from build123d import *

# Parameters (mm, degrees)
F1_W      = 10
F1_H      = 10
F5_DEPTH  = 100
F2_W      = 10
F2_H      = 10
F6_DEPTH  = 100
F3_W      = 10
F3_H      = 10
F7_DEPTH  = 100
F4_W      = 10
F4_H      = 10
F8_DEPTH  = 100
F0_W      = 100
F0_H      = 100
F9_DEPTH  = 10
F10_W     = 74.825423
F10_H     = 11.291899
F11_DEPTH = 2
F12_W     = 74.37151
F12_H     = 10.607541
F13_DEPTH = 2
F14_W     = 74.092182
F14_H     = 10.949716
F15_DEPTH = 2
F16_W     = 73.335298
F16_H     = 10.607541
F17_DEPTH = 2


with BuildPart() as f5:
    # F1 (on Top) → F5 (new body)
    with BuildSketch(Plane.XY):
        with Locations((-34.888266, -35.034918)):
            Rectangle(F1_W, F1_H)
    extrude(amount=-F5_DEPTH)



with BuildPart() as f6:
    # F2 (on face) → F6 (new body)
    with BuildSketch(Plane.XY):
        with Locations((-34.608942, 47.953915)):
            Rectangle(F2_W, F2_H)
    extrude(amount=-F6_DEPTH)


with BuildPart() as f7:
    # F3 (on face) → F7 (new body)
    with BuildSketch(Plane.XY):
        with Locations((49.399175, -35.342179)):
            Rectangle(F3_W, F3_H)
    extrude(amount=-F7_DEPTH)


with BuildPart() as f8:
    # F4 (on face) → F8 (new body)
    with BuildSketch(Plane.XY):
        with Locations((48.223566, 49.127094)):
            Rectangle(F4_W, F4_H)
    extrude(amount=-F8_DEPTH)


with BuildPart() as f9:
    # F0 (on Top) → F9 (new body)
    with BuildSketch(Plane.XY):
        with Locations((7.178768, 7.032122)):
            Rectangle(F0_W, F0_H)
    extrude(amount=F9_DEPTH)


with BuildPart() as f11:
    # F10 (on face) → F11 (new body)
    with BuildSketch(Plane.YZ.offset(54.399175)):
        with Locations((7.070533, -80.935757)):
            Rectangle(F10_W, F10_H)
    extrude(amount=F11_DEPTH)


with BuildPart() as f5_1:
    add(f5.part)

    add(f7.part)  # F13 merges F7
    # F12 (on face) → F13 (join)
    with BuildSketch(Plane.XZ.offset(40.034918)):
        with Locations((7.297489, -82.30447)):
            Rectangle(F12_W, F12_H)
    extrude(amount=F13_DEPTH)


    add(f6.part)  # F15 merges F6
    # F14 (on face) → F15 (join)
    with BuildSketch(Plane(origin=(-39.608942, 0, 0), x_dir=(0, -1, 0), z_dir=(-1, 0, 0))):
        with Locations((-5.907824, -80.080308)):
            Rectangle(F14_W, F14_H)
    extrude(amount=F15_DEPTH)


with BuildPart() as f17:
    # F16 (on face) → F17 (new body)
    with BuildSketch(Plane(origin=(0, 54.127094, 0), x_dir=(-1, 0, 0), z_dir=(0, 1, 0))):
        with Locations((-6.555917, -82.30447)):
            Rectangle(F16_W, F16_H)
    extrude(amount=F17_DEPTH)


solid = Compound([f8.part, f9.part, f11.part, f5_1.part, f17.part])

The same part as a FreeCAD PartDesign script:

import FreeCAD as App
import Part
import Sketcher

V = App.Vector
Q = App.Units.Quantity

doc = App.newDocument("Part")
body = doc.addObject("PartDesign::Body", "Body")

# Sketch on XY plane
sketch1 = body.newObject("Sketcher::SketchObject", "Sketch")
sketch1.AttachmentSupport = (doc.getObject("XY_Plane"), [""])
sketch1.MapMode = "FlatFace"
sketch1.addGeometry(Part.LineSegment(V(-40, -30, 0), V(-40, -40, 0)), False)
sketch1.addGeometry(Part.LineSegment(V(-40, -40, 0), V(-30, -40, 0)), False)
sketch1.addGeometry(Part.LineSegment(V(-30, -40, 0), V(-30, -30, 0)), False)
sketch1.addGeometry(Part.LineSegment(V(-30, -30, 0), V(-40, -30, 0)), False)
sketch1.addConstraint(Sketcher.Constraint("Coincident", 0, 2, 1, 1))
sketch1.addConstraint(Sketcher.Constraint("Coincident", 1, 2, 2, 1))
sketch1.addConstraint(Sketcher.Constraint("Coincident", 2, 2, 3, 1))
sketch1.addConstraint(Sketcher.Constraint("Coincident", 3, 2, 0, 1))
sketch1.addConstraint(Sketcher.Constraint("Vertical", 0))
sketch1.addConstraint(Sketcher.Constraint("Horizontal", 1))
sketch1.addConstraint(Sketcher.Constraint("Vertical", 2))
sketch1.addConstraint(Sketcher.Constraint("Horizontal", 3))
sketch1.addConstraint(Sketcher.Constraint("Equal", 3, 0))
sketch1.addConstraint(Sketcher.Constraint("DistanceX", 1, 1, 1, 2, Q("10 mm")))
sketch1.addConstraint(Sketcher.Constraint("DistanceY", 2, 2, -1, 1, Q("30.034918 mm")))
sketch1.addConstraint(Sketcher.Constraint("DistanceX", 0, 2, -1, 1, Q("39.888266 mm")))
pad1 = body.newObject("PartDesign::Pad", "Pad")
pad1.Profile = sketch1
pad1.Length = 100
pad1.Reversed = True
body2 = doc.addObject("PartDesign::Body", "Body001")

# Sketch on XY plane
sketch2 = body2.newObject("Sketcher::SketchObject", "Sketch001")
sketch2.AttachmentSupport = (doc.getObject("XY_Plane001"), [""])
sketch2.MapMode = "FlatFace"
sketch2.addGeometry(Part.LineSegment(V(-40, 53, 0), V(-40, 43, 0)), False)
sketch2.addGeometry(Part.LineSegment(V(-40, 43, 0), V(-30, 43, 0)), False)
sketch2.addGeometry(Part.LineSegment(V(-30, 43, 0), V(-30, 53, 0)), False)
sketch2.addGeometry(Part.LineSegment(V(-30, 53, 0), V(-40, 53, 0)), False)
sketch2.addConstraint(Sketcher.Constraint("Coincident", 0, 2, 1, 1))
sketch2.addConstraint(Sketcher.Constraint("Coincident", 1, 2, 2, 1))
sketch2.addConstraint(Sketcher.Constraint("Coincident", 2, 2, 3, 1))
sketch2.addConstraint(Sketcher.Constraint("Coincident", 3, 2, 0, 1))
sketch2.addConstraint(Sketcher.Constraint("Vertical", 0))
sketch2.addConstraint(Sketcher.Constraint("Horizontal", 1))
sketch2.addConstraint(Sketcher.Constraint("Vertical", 2))
sketch2.addConstraint(Sketcher.Constraint("Horizontal", 3))
sketch2.addConstraint(Sketcher.Constraint("Equal", 3, 0))
sketch2.addConstraint(Sketcher.Constraint("DistanceX", 1, 1, 1, 2, Q("10 mm")))
sketch2.addConstraint(Sketcher.Constraint("DistanceX", 1, 2, -1, 1, Q("29.608942 mm")))
sketch2.addConstraint(Sketcher.Constraint("DistanceY", -1, 1, 0, 2, Q("42.953915 mm")))
pad2 = body2.newObject("PartDesign::Pad", "Pad001")
pad2.Profile = sketch2
pad2.Length = 100
pad2.Reversed = True
body3 = doc.addObject("PartDesign::Body", "Body002")

# Sketch on XY plane
sketch3 = body3.newObject("Sketcher::SketchObject", "Sketch002")
sketch3.AttachmentSupport = (doc.getObject("XY_Plane002"), [""])
sketch3.MapMode = "FlatFace"
sketch3.addGeometry(Part.LineSegment(V(44, -30, 0), V(44, -40, 0)), False)
sketch3.addGeometry(Part.LineSegment(V(44, -40, 0), V(54, -40, 0)), False)
sketch3.addGeometry(Part.LineSegment(V(54, -40, 0), V(54, -30, 0)), False)
sketch3.addGeometry(Part.LineSegment(V(54, -30, 0), V(44, -30, 0)), False)
sketch3.addConstraint(Sketcher.Constraint("Coincident", 0, 2, 1, 1))
sketch3.addConstraint(Sketcher.Constraint("Coincident", 1, 2, 2, 1))
sketch3.addConstraint(Sketcher.Constraint("Coincident", 2, 2, 3, 1))
sketch3.addConstraint(Sketcher.Constraint("Coincident", 3, 2, 0, 1))
sketch3.addConstraint(Sketcher.Constraint("Vertical", 0))
sketch3.addConstraint(Sketcher.Constraint("Horizontal", 1))
sketch3.addConstraint(Sketcher.Constraint("Vertical", 2))
sketch3.addConstraint(Sketcher.Constraint("Horizontal", 3))
sketch3.addConstraint(Sketcher.Constraint("Equal", 3, 0))
sketch3.addConstraint(Sketcher.Constraint("DistanceX", 1, 1, 1, 2, Q("10 mm")))
sketch3.addConstraint(Sketcher.Constraint("DistanceY", 0, 2, -1, 1, Q("40.342179 mm")))
sketch3.addConstraint(Sketcher.Constraint("DistanceX", -1, 1, 0, 2, Q("44.399175 mm")))
pad3 = body3.newObject("PartDesign::Pad", "Pad002")
pad3.Profile = sketch3
pad3.Length = 100
pad3.Reversed = True
body4 = doc.addObject("PartDesign::Body", "Body003")

# Sketch on XY plane
sketch4 = body4.newObject("Sketcher::SketchObject", "Sketch003")
sketch4.AttachmentSupport = (doc.getObject("XY_Plane003"), [""])
sketch4.MapMode = "FlatFace"
sketch4.addGeometry(Part.LineSegment(V(43, 54, 0), V(43, 44, 0)), False)
sketch4.addGeometry(Part.LineSegment(V(43, 44, 0), V(53, 44, 0)), False)
sketch4.addGeometry(Part.LineSegment(V(53, 44, 0), V(53, 54, 0)), False)
sketch4.addGeometry(Part.LineSegment(V(53, 54, 0), V(43, 54, 0)), False)
sketch4.addConstraint(Sketcher.Constraint("Coincident", 0, 2, 1, 1))
sketch4.addConstraint(Sketcher.Constraint("Coincident", 1, 2, 2, 1))
sketch4.addConstraint(Sketcher.Constraint("Coincident", 2, 2, 3, 1))
sketch4.addConstraint(Sketcher.Constraint("Coincident", 3, 2, 0, 1))
sketch4.addConstraint(Sketcher.Constraint("Vertical", 0))
sketch4.addConstraint(Sketcher.Constraint("Horizontal", 1))
sketch4.addConstraint(Sketcher.Constraint("Vertical", 2))
sketch4.addConstraint(Sketcher.Constraint("Horizontal", 3))
sketch4.addConstraint(Sketcher.Constraint("Equal", 3, 0))
sketch4.addConstraint(Sketcher.Constraint("DistanceX", 1, 1, 1, 2, Q("10 mm")))
sketch4.addConstraint(Sketcher.Constraint("DistanceX", -1, 1, 0, 2, Q("43.223566 mm")))
sketch4.addConstraint(Sketcher.Constraint("DistanceY", -1, 1, 0, 2, Q("44.127094 mm")))
pad4 = body4.newObject("PartDesign::Pad", "Pad003")
pad4.Profile = sketch4
pad4.Length = 100
pad4.Reversed = True
body5 = doc.addObject("PartDesign::Body", "Body004")

# Sketch on XY plane
sketch5 = body5.newObject("Sketcher::SketchObject", "Sketch004")
sketch5.AttachmentSupport = (doc.getObject("XY_Plane004"), [""])
sketch5.MapMode = "FlatFace"
sketch5.addGeometry(Part.LineSegment(V(-43, 57, 0), V(-43, -43, 0)), False)
sketch5.addGeometry(Part.LineSegment(V(-43, -43, 0), V(57, -43, 0)), False)
sketch5.addGeometry(Part.LineSegment(V(57, -43, 0), V(57, 57, 0)), False)
sketch5.addGeometry(Part.LineSegment(V(57, 57, 0), V(-43, 57, 0)), False)
sketch5.addConstraint(Sketcher.Constraint("Coincident", 0, 2, 1, 1))
sketch5.addConstraint(Sketcher.Constraint("Coincident", 1, 2, 2, 1))
sketch5.addConstraint(Sketcher.Constraint("Coincident", 2, 2, 3, 1))
sketch5.addConstraint(Sketcher.Constraint("Coincident", 3, 2, 0, 1))
sketch5.addConstraint(Sketcher.Constraint("Vertical", 0))
sketch5.addConstraint(Sketcher.Constraint("Horizontal", 1))
sketch5.addConstraint(Sketcher.Constraint("Vertical", 2))
sketch5.addConstraint(Sketcher.Constraint("Horizontal", 3))
sketch5.addConstraint(Sketcher.Constraint("Equal", 3, 0))
sketch5.addConstraint(Sketcher.Constraint("DistanceX", 1, 1, 1, 2, Q("100 mm")))
sketch5.addConstraint(Sketcher.Constraint("DistanceX", 0, 2, -1, 1, Q("42.821232 mm")))
sketch5.addConstraint(Sketcher.Constraint("DistanceY", 0, 2, -1, 1, Q("42.967878 mm")))
pad5 = body5.newObject("PartDesign::Pad", "Pad004")
pad5.Profile = sketch5
pad5.Length = 10
body6 = doc.addObject("PartDesign::Body", "Body005")

# Sketch on YZ plane
sketch6 = body6.newObject("Sketcher::SketchObject", "Sketch005")
sketch6.AttachmentSupport = (doc.getObject("YZ_Plane005"), [""])
sketch6.MapMode = "FlatFace"
sketch6.AttachmentOffset = App.Placement(V(0, 0, 54.399175), App.Rotation())
sketch6.addGeometry(Part.LineSegment(V(-30, -75, 0), V(-30, -87, 0)), False)
sketch6.addGeometry(Part.LineSegment(V(-30, -87, 0), V(44, -87, 0)), False)
sketch6.addGeometry(Part.LineSegment(V(44, -87, 0), V(44, -75, 0)), False)
sketch6.addGeometry(Part.LineSegment(V(44, -75, 0), V(-30, -75, 0)), False)
sketch6.addConstraint(Sketcher.Constraint("Coincident", 0, 2, 1, 1))
sketch6.addConstraint(Sketcher.Constraint("Coincident", 1, 2, 2, 1))
sketch6.addConstraint(Sketcher.Constraint("Coincident", 2, 2, 3, 1))
sketch6.addConstraint(Sketcher.Constraint("Coincident", 3, 2, 0, 1))
sketch6.addConstraint(Sketcher.Constraint("Vertical", 0))
sketch6.addConstraint(Sketcher.Constraint("Horizontal", 1))
sketch6.addConstraint(Sketcher.Constraint("Vertical", 2))
sketch6.addConstraint(Sketcher.Constraint("Horizontal", 3))
sketch6.addConstraint(Sketcher.Constraint("DistanceY", 0, 2, 0, 1, Q("11.291899 mm")))
sketch6.addConstraint(Sketcher.Constraint("DistanceX", 1, 1, 1, 2, Q("74.825423 mm")))
sketch6.addConstraint(Sketcher.Constraint("DistanceX", 0, 2, -1, 1, Q("30.342178 mm")))
sketch6.addConstraint(Sketcher.Constraint("DistanceY", 0, 2, -1, 1, Q("86.581706 mm")))
pad6 = body6.newObject("PartDesign::Pad", "Pad005")
pad6.Profile = sketch6
pad6.Length = 2
body.AllowCompound = True
doc.recompute()

boolean = body.newObject("PartDesign::Boolean", "Boolean")
boolean.Type = "Fuse"
boolean.addObjects([body3])

# Sketch on XZ plane
sketch7 = body.newObject("Sketcher::SketchObject", "Sketch006")
sketch7.AttachmentSupport = (doc.getObject("XZ_Plane"), [""])
sketch7.MapMode = "FlatFace"
sketch7.AttachmentOffset = App.Placement(V(0, 0, 40.034918), App.Rotation())
sketch7.addGeometry(Part.LineSegment(V(-30, -77, 0), V(-30, -88, 0)), False)
sketch7.addGeometry(Part.LineSegment(V(-30, -88, 0), V(44, -88, 0)), False)
sketch7.addGeometry(Part.LineSegment(V(44, -88, 0), V(44, -77, 0)), False)
sketch7.addGeometry(Part.LineSegment(V(44, -77, 0), V(-30, -77, 0)), False)
sketch7.addConstraint(Sketcher.Constraint("Coincident", 0, 2, 1, 1))
sketch7.addConstraint(Sketcher.Constraint("Coincident", 1, 2, 2, 1))
sketch7.addConstraint(Sketcher.Constraint("Coincident", 2, 2, 3, 1))
sketch7.addConstraint(Sketcher.Constraint("Coincident", 3, 2, 0, 1))
sketch7.addConstraint(Sketcher.Constraint("Vertical", 0))
sketch7.addConstraint(Sketcher.Constraint("Horizontal", 1))
sketch7.addConstraint(Sketcher.Constraint("Vertical", 2))
sketch7.addConstraint(Sketcher.Constraint("Horizontal", 3))
sketch7.addConstraint(Sketcher.Constraint("DistanceX", 1, 1, 1, 2, Q("74.37151 mm")))
sketch7.addConstraint(Sketcher.Constraint("DistanceY", 0, 2, 0, 1, Q("10.607541 mm")))
sketch7.addConstraint(Sketcher.Constraint("DistanceY", 2, 2, -1, 1, Q("77.000699 mm")))
sketch7.addConstraint(Sketcher.Constraint("DistanceX", 0, 2, -1, 1, Q("29.888266 mm")))
pad7 = body.newObject("PartDesign::Pad", "Pad006")
pad7.Profile = sketch7
pad7.Length = 2
doc.recompute()

boolean2 = body.newObject("PartDesign::Boolean", "Boolean001")
boolean2.Type = "Fuse"
boolean2.addObjects([body2])

# Sketch on YZ plane
sketch8 = body.newObject("Sketcher::SketchObject", "Sketch007")
sketch8.AttachmentSupport = (doc.getObject("YZ_Plane"), [""])
sketch8.MapMode = "FlatFace"
sketch8.AttachmentOffset = App.Placement(V(0, 0, -39.608942), App.Rotation())
sketch8.addGeometry(Part.LineSegment(V(43, -75, 0), V(43, -86, 0)), False)
sketch8.addGeometry(Part.LineSegment(V(43, -86, 0), V(-31, -86, 0)), False)
sketch8.addGeometry(Part.LineSegment(V(-31, -86, 0), V(-31, -75, 0)), False)
sketch8.addGeometry(Part.LineSegment(V(-31, -75, 0), V(43, -75, 0)), False)
sketch8.addConstraint(Sketcher.Constraint("Coincident", 0, 2, 1, 1))
sketch8.addConstraint(Sketcher.Constraint("Coincident", 1, 2, 2, 1))
sketch8.addConstraint(Sketcher.Constraint("Coincident", 2, 2, 3, 1))
sketch8.addConstraint(Sketcher.Constraint("Coincident", 3, 2, 0, 1))
sketch8.addConstraint(Sketcher.Constraint("Vertical", 0))
sketch8.addConstraint(Sketcher.Constraint("Horizontal", 1))
sketch8.addConstraint(Sketcher.Constraint("Vertical", 2))
sketch8.addConstraint(Sketcher.Constraint("Horizontal", 3))
sketch8.addConstraint(Sketcher.Constraint("DistanceX", 1, 2, 1, 1, Q("74.092182 mm")))
sketch8.addConstraint(Sketcher.Constraint("DistanceY", 0, 2, 0, 1, Q("10.949716 mm")))
sketch8.addConstraint(Sketcher.Constraint("DistanceY", 2, 2, -1, 1, Q("74.60545 mm")))
sketch8.addConstraint(Sketcher.Constraint("DistanceX", -1, 1, 0, 2, Q("42.953915 mm")))
pad8 = body.newObject("PartDesign::Pad", "Pad007")
pad8.Profile = sketch8
pad8.Length = 2
pad8.Reversed = True
body7 = doc.addObject("PartDesign::Body", "Body006")

# Sketch on XZ plane
sketch9 = body7.newObject("Sketcher::SketchObject", "Sketch008")
sketch9.AttachmentSupport = (doc.getObject("XZ_Plane006"), [""])
sketch9.MapMode = "FlatFace"
sketch9.AttachmentOffset = App.Placement(V(0, 0, -54.127094), App.Rotation())
sketch9.addGeometry(Part.LineSegment(V(43, -77, 0), V(43, -88, 0)), False)
sketch9.addGeometry(Part.LineSegment(V(43, -88, 0), V(-30, -88, 0)), False)
sketch9.addGeometry(Part.LineSegment(V(-30, -88, 0), V(-30, -77, 0)), False)
sketch9.addGeometry(Part.LineSegment(V(-30, -77, 0), V(43, -77, 0)), False)
sketch9.addConstraint(Sketcher.Constraint("Coincident", 0, 2, 1, 1))
sketch9.addConstraint(Sketcher.Constraint("Coincident", 1, 2, 2, 1))
sketch9.addConstraint(Sketcher.Constraint("Coincident", 2, 2, 3, 1))
sketch9.addConstraint(Sketcher.Constraint("Coincident", 3, 2, 0, 1))
sketch9.addConstraint(Sketcher.Constraint("Vertical", 0))
sketch9.addConstraint(Sketcher.Constraint("Horizontal", 1))
sketch9.addConstraint(Sketcher.Constraint("Vertical", 2))
sketch9.addConstraint(Sketcher.Constraint("Horizontal", 3))
sketch9.addConstraint(Sketcher.Constraint("DistanceY", 0, 2, 0, 1, Q("10.607541 mm")))
sketch9.addConstraint(Sketcher.Constraint("DistanceY", 2, 2, -1, 1, Q("77.000699 mm")))
sketch9.addConstraint(Sketcher.Constraint("DistanceX", 1, 2, 1, 1, Q("73.335298 mm")))
sketch9.addConstraint(Sketcher.Constraint("DistanceX", 1, 2, -1, 1, Q("30.111732 mm")))
pad9 = body7.newObject("PartDesign::Pad", "Pad008")
pad9.Profile = sketch9
pad9.Length = 2
pad9.Reversed = True

doc.recompute()
